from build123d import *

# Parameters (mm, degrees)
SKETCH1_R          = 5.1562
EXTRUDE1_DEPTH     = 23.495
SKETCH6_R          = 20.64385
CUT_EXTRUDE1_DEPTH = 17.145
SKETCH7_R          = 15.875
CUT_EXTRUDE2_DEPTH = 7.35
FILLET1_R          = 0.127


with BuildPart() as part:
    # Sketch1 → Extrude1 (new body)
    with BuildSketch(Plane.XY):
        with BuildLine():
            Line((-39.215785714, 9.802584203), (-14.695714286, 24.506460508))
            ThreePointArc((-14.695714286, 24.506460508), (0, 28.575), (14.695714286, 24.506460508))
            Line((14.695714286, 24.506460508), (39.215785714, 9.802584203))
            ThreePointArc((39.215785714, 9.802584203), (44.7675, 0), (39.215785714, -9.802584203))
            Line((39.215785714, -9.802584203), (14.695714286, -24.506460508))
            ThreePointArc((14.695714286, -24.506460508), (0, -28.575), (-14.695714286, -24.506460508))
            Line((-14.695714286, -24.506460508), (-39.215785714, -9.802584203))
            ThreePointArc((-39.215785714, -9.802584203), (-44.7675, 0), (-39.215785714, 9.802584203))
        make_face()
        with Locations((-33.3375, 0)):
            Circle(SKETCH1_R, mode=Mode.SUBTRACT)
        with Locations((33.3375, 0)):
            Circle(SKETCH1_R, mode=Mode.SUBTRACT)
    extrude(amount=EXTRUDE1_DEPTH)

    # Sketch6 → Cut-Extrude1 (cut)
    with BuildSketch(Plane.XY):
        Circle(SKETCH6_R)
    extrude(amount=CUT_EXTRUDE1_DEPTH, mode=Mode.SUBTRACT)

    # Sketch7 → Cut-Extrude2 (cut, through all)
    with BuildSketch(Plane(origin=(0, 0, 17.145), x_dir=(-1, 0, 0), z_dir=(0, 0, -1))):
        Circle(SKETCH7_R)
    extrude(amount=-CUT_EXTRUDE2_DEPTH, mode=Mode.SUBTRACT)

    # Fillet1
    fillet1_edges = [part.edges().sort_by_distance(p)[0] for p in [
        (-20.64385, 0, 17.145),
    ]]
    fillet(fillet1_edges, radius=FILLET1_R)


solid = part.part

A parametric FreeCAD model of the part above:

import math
import FreeCAD as App
import Part
import Sketcher
Q = App.Units.Quantity


def edges_at(feature, points):
    """Names of the edges that pass closest to the given points."""
    edges = feature.Shape.Edges
    near = lambda p: min(range(len(edges)), key=lambda i: edges[i].distToShape(Part.Vertex(*p))[0])
    return sorted({f"Edge{near(p) + 1}" for p in points})

doc = App.newDocument("Part")
body = doc.addObject("PartDesign::Body", "Body")

# Sketch on XY plane
sketch1 = body.newObject("Sketcher::SketchObject", "Sketch")
sketch1.AttachmentSupport = (doc.getObject("XY_Plane"), [""])
sketch1.MapMode = "FlatFace"
sketch1.addGeometry([
    Part.LineSegment(App.Vector(-15, 25, 0), App.Vector(-39, 10, 0)),  # 0
    Part.ArcOfCircle(Part.Circle(App.Vector(-33, 0, 0), App.Vector(0, 0, 1), 11), math.radians(121), math.radians(239)),  # 1
    Part.LineSegment(App.Vector(-39, -10, 0), App.Vector(-15, -25, 0)),  # 2
    Part.ArcOfCircle(Part.Circle(App.Vector(0, 0, 0), App.Vector(0, 0, 1), 29), math.radians(-121), math.radians(-59)),  # 3
    Part.LineSegment(App.Vector(15, -25, 0), App.Vector(39, -10, 0)),  # 4
    Part.ArcOfCircle(Part.Circle(App.Vector(33, 0, 0), App.Vector(0, 0, 1), 11), math.radians(-59), math.radians(59)),  # 5
    Part.LineSegment(App.Vector(39, 10, 0), App.Vector(15, 25, 0)),  # 6
    Part.ArcOfCircle(Part.Circle(App.Vector(0, 0, 0), App.Vector(0, 0, 1), 29), math.radians(59), math.radians(121)),  # 7
    Part.Circle(App.Vector(33, 0, 0), App.Vector(0, 0, 1), 5),  # 8
    Part.Circle(App.Vector(-33, 0, 0), App.Vector(0, 0, 1), 5),  # 9
], False)
sketch1.addConstraint([
    Sketcher.Constraint("Tangent", 0, 2, 1, 1),
    Sketcher.Constraint("Tangent", 1, 2, 2, 1),
    Sketcher.Constraint("Tangent", 2, 2, 3, 1),
    Sketcher.Constraint("Tangent", 3, 2, 4, 1),
    Sketcher.Constraint("Tangent", 4, 2, 5, 1),
    Sketcher.Constraint("Tangent", 5, 2, 6, 1),
    Sketcher.Constraint("Tangent", 6, 2, 7, 1),
    Sketcher.Constraint("Tangent", 7, 2, 0, 1),
    Sketcher.Constraint("Coincident", 3, 3, -1, 1),
    Sketcher.Constraint("Coincident", 7, 3, -1, 1),
    Sketcher.Constraint("Coincident", 8, 3, 5, 3),
    Sketcher.Constraint("Coincident", 9, 3, 1, 3),
    Sketcher.Constraint("Equal", 1, 5),
    Sketcher.Constraint("Equal", 3, 7),
    Sketcher.Constraint("Equal", 8, 9),
    Sketcher.Constraint("Symmetric", 1, 3, 5, 3, -1, 1),
    Sketcher.Constraint("PointOnObject", 1, 3, -1),
    Sketcher.Constraint("Radius", 1, Q("0.45 in")),
    Sketcher.Constraint("Diameter", 8, Q("0.406 in")),
    Sketcher.Constraint("Radius", 3, Q("1.125 in")),
    Sketcher.Constraint("DistanceX", 1, 3, -1, 1, Q("1.3125 in")),
])
pad1 = body.newObject("PartDesign::Pad", "Pad")
pad1.Profile = sketch1
pad1.Length = Q("0.925 in")

# Sketch on XY plane
sketch2 = body.newObject("Sketcher::SketchObject", "Sketch001")
sketch2.AttachmentSupport = (doc.getObject("XY_Plane"), [""])
sketch2.MapMode = "FlatFace"
sketch2.addGeometry(Part.Circle(App.Vector(0, 0, 0), App.Vector(0, 0, 1), 21), False)
sketch2.addConstraint([
    Sketcher.Constraint("Coincident", 0, 3, -1, 1),
    Sketcher.Constraint("Diameter", 0, Q("1.6255 in")),
])
pocket1 = body.newObject("PartDesign::Pocket", "Pocket")
pocket1.Profile = sketch2
pocket1.Length = Q("0.675 in")
pocket1.Reversed = True

# Sketch on XY plane
sketch3 = body.newObject("Sketcher::SketchObject", "Sketch002")
sketch3.AttachmentSupport = (doc.getObject("XY_Plane"), [""])
sketch3.MapMode = "FlatFace"
sketch3.AttachmentOffset = App.Placement(App.Vector(0, 0, 0.675 * 25.4), App.Rotation())
sketch3.addGeometry(Part.Circle(App.Vector(0, 0, 0), App.Vector(0, 0, 1), 16), False)
sketch3.addConstraint([
    Sketcher.Constraint("Coincident", 0, 3, -1, 1),
    Sketcher.Constraint("Diameter", 0, Q("1.25 in")),
])
pocket2 = body.newObject("PartDesign::Pocket", "Pocket001")
pocket2.Profile = sketch3
pocket2.Type = "ThroughAll"
pocket2.Reversed = True
doc.recompute()

fillet = body.newObject("PartDesign::Fillet", "Fillet")
fillet.Base = (pocket2, edges_at(pocket2, [(-20.644, 0, 17.145)]))
fillet.Radius = Q("0.005 in")

doc.recompute()
